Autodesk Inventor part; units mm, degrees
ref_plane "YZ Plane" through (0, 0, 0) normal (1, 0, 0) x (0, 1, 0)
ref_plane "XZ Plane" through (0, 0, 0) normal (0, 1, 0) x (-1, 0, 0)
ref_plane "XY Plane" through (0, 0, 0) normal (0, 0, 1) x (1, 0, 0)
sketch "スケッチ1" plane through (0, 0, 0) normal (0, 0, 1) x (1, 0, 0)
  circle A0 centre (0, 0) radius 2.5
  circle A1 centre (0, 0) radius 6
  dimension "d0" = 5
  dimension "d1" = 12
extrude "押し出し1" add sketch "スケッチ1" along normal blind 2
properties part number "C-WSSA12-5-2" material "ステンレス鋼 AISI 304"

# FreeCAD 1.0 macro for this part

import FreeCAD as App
import Part
import Sketcher
Q = App.Units.Quantity

doc = App.newDocument("Part")
body = doc.addObject("PartDesign::Body", "Body")

sketch1 = body.newObject("Sketcher::SketchObject", "Sketch")
sketch1.AttachmentSupport = (doc.getObject("XY_Plane"), [""])
sketch1.MapMode = "FlatFace"
sketch1.addGeometry([
    Part.Circle(App.Vector(0, 0, 0), App.Vector(0, 0, 1), 6),
    Part.Circle(App.Vector(0, 0, 0), App.Vector(0, 0, 1), 2.5),
], False)
sketch1.addConstraint([
    Sketcher.Constraint("Coincident", 0, 3, -1, 1),
    Sketcher.Constraint("Coincident", 1, 3, -1, 1),
    Sketcher.Constraint("Diameter", 0, Q("12 mm")),
    Sketcher.Constraint("Diameter", 1, Q("5 mm")),
])
pad1 = body.newObject("PartDesign::Pad", "Pad")
pad1.Profile = sketch1
pad1.Length = 2

doc.recompute()
